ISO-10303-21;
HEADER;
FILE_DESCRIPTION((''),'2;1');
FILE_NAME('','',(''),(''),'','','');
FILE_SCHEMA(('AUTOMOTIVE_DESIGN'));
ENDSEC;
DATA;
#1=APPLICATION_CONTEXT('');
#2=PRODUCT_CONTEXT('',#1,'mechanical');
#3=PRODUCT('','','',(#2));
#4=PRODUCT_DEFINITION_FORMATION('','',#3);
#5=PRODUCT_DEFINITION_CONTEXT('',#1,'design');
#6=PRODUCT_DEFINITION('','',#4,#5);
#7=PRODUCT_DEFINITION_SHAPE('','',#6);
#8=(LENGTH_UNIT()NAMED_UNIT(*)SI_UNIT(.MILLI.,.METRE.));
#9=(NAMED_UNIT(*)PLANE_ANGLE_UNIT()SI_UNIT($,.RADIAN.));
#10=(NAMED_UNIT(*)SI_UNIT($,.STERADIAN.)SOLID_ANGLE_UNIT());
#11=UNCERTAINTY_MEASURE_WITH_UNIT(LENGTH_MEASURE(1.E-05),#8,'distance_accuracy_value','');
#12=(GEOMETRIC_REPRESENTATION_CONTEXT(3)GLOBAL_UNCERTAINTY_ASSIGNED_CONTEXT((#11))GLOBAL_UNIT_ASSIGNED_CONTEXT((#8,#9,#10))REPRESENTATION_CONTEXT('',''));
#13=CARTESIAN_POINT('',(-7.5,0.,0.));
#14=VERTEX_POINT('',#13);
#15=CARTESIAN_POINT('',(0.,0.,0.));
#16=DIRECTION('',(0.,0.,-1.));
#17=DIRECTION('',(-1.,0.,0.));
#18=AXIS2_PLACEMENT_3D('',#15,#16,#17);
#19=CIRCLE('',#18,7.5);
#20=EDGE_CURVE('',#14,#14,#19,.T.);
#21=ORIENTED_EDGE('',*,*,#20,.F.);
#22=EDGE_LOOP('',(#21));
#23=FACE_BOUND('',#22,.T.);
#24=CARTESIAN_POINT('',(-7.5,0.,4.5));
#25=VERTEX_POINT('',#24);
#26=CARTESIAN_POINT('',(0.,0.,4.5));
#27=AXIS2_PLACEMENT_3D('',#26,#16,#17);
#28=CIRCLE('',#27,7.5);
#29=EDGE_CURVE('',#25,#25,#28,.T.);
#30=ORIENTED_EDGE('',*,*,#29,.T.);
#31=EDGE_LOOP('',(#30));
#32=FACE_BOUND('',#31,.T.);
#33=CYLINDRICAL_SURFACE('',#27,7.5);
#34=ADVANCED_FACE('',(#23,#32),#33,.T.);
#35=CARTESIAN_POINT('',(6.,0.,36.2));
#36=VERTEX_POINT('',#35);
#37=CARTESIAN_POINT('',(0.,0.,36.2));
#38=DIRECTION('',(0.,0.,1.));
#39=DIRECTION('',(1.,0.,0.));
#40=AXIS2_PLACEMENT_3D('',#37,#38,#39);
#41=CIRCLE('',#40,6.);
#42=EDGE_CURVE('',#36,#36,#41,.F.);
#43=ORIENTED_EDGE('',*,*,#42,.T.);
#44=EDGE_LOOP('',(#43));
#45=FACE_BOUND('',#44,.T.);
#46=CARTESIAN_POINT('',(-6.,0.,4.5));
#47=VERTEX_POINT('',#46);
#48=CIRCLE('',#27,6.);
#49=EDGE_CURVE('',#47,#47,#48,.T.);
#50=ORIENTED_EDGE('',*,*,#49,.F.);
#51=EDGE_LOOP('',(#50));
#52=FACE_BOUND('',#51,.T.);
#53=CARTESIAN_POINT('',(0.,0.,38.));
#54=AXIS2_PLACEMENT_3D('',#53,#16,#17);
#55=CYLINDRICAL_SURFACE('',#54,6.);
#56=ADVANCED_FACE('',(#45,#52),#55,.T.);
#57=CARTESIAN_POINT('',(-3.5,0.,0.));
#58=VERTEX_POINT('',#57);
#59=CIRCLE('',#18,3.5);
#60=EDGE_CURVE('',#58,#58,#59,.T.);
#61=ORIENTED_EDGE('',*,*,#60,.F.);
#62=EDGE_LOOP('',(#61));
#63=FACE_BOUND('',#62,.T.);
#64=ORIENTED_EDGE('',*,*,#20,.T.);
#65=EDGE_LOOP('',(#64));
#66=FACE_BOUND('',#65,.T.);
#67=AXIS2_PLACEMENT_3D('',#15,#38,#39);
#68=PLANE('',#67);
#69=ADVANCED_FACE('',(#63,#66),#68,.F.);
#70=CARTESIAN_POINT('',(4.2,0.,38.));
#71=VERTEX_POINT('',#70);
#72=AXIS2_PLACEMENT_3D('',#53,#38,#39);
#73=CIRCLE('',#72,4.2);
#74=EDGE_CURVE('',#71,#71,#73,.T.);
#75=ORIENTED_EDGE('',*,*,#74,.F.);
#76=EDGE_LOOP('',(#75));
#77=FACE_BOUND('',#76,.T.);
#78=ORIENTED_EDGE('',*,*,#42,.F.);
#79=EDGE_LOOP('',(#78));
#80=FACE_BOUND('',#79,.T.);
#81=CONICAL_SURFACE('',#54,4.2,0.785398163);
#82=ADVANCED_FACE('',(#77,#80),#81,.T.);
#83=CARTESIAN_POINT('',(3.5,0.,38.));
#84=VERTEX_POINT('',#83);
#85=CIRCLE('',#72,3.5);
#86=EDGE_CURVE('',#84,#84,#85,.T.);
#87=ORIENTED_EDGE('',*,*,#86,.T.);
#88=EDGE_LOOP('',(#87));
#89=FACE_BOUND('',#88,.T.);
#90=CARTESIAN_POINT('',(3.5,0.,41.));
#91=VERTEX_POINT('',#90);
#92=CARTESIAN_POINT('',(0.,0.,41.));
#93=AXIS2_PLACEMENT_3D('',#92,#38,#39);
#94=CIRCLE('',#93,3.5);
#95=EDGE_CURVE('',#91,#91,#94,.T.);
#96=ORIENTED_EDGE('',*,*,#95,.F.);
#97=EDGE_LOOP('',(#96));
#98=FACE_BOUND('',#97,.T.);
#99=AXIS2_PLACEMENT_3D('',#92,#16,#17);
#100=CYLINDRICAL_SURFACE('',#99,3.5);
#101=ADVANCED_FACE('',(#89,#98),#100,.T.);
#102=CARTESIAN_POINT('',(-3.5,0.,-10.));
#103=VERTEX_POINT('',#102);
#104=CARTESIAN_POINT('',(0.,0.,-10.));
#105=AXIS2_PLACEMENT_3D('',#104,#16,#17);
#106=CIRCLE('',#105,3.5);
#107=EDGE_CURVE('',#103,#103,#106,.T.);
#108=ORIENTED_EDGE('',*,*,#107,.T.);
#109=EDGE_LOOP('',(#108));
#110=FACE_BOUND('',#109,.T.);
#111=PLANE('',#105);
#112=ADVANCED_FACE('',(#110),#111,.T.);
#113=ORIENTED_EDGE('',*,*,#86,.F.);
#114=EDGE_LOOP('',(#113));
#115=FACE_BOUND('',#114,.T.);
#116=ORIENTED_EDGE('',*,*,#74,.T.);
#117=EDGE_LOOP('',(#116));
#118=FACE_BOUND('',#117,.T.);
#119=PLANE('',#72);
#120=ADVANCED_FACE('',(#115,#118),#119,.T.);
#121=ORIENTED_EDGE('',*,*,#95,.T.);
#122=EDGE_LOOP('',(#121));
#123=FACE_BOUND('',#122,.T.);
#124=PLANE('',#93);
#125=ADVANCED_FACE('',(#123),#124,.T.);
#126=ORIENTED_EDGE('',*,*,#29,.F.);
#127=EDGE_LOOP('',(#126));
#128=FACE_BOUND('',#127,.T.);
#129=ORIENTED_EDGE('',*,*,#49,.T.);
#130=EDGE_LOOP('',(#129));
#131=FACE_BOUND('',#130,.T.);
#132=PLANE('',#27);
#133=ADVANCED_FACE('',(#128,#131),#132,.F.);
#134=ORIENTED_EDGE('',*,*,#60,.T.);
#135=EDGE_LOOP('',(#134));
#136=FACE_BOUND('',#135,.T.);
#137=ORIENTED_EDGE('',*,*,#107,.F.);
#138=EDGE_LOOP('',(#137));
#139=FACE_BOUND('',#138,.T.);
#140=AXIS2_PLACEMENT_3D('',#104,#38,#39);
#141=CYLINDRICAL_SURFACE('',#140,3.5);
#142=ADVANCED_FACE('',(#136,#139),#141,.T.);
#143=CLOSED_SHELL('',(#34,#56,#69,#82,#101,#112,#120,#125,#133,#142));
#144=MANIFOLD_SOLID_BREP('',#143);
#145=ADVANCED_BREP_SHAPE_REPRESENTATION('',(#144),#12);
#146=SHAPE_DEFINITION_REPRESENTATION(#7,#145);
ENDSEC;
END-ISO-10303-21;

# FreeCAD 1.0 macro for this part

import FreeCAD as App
import Part
import Sketcher

V = App.Vector


def edges_at(feature, points):
    """Names of the edges that pass closest to the given points."""
    edges = feature.Shape.Edges
    near = lambda p: min(range(len(edges)), key=lambda i: edges[i].distToShape(Part.Vertex(*p))[0])
    return sorted({f"Edge{near(p) + 1}" for p in points})

doc = App.newDocument("Part")
body = doc.addObject("PartDesign::Body", "Body")

# Sketch on XY plane
sketch1 = doc.addObject("Sketcher::SketchObject", "Sketch")
body.addObject(sketch1)
sketch1.AttachmentSupport = (doc.XY_Plane, [""])
sketch1.MapMode = "FlatFace"
sketch1.addGeometry(Part.Circle(V(0, 0, 0), V(0, 0, 1), 6), False)
sketch1.addConstraint(Sketcher.Constraint("Coincident", 0, 3, -1, 1))
sketch1.addConstraint(Sketcher.Constraint("Diameter", 0, 12.0))
pad1 = doc.addObject("PartDesign::Pad", "Pad")
body.addObject(pad1)
pad1.Profile = sketch1
pad1.Length = 38

# Sketch on XY plane
sketch2 = doc.addObject("Sketcher::SketchObject", "Sketch001")
body.addObject(sketch2)
sketch2.AttachmentSupport = (doc.XY_Plane, [""])
sketch2.MapMode = "FlatFace"
sketch2.AttachmentOffset = App.Placement(V(0, 0, 38), App.Rotation())
sketch2.addGeometry(Part.Circle(V(0, 0, 0), V(0, 0, 1), 3.5), False)
sketch2.addConstraint(Sketcher.Constraint("Coincident", 0, 3, -1, 1))
sketch2.addConstraint(Sketcher.Constraint("Diameter", 0, 7.0))
pad2 = doc.addObject("PartDesign::Pad", "Pad001")
body.addObject(pad2)
pad2.Profile = sketch2
pad2.Length = 3

# Sketch on XY plane
sketch3 = doc.addObject("Sketcher::SketchObject", "Sketch002")
body.addObject(sketch3)
sketch3.AttachmentSupport = (doc.XY_Plane, [""])
sketch3.MapMode = "FlatFace"
sketch3.addGeometry(Part.Circle(V(0, 0, 0), V(0, 0, 1), 3.5), False)
sketch3.addConstraint(Sketcher.Constraint("Coincident", 0, 3, -1, 1))
sketch3.addConstraint(Sketcher.Constraint("Diameter", 0, 7.0))
pad3 = doc.addObject("PartDesign::Pad", "Pad002")
body.addObject(pad3)
pad3.Profile = sketch3
pad3.Length = 10
pad3.Reversed = True

# Sketch on XY plane
sketch4 = doc.addObject("Sketcher::SketchObject", "Sketch003")
body.addObject(sketch4)
sketch4.AttachmentSupport = (doc.XY_Plane, [""])
sketch4.MapMode = "FlatFace"
sketch4.addGeometry(Part.Circle(V(0, 0, 0), V(0, 0, 1), 8), False)
sketch4.addConstraint(Sketcher.Constraint("Coincident", 0, 3, -1, 1))
sketch4.addConstraint(Sketcher.Constraint("Diameter", 0, 15.0))
pad4 = doc.addObject("PartDesign::Pad", "Pad003")
body.addObject(pad4)
pad4.Profile = sketch4
pad4.Length = 4.5
doc.recompute()

chamfer = doc.addObject("PartDesign::Chamfer", "Chamfer")
body.addObject(chamfer)
chamfer.Base = (pad4, edges_at(pad4, [(-6, 0, 38)]))
chamfer.Size = 1.8

doc.recompute()
